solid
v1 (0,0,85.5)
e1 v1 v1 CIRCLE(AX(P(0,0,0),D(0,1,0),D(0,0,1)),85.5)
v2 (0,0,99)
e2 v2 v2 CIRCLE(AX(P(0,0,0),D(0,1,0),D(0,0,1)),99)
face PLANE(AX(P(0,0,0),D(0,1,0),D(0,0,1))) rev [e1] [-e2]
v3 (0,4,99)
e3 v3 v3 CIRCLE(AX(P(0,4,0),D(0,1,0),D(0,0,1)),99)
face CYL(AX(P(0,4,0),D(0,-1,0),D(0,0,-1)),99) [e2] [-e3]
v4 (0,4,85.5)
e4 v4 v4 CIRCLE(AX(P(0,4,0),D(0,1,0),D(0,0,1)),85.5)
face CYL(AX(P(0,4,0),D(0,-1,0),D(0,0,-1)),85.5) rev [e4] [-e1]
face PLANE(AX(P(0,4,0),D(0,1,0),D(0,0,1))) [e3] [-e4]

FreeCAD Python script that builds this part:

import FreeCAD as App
import Part
import Sketcher

V = App.Vector
Q = App.Units.Quantity

doc = App.newDocument("Part")
body = doc.addObject("PartDesign::Body", "Body")

sketch1 = body.newObject("Sketcher::SketchObject", "Sketch")
sketch1.AttachmentSupport = (doc.getObject("XZ_Plane"), [""])
sketch1.MapMode = "FlatFace"
sketch1.addGeometry([
    Part.Circle(V(0, 0, 0), V(0, 0, 1), 99),
    Part.Circle(V(0, 0, 0), V(0, 0, 1), 85.5),
], False)
sketch1.addConstraint([
    Sketcher.Constraint("Coincident", 0, 3, -1, 1),
    Sketcher.Constraint("Coincident", 1, 3, -1, 1),
    Sketcher.Constraint("Diameter", 0, Q("198 mm")),
    Sketcher.Constraint("Diameter", 1, Q("171 mm")),
])
pad1 = body.newObject("PartDesign::Pad", "Pad")
pad1.Profile = sketch1
pad1.Length = 4
pad1.Reversed = True

doc.recompute()
